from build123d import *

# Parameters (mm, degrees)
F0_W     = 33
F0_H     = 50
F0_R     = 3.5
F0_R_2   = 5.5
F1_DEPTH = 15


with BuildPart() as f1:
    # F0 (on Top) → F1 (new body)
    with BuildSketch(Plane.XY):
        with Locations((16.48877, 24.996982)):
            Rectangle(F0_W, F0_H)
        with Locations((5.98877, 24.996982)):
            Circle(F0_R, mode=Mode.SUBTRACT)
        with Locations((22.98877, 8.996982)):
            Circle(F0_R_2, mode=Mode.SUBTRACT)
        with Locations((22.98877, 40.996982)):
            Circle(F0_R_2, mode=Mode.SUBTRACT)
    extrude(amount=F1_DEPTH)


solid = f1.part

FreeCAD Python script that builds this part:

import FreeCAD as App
import Part
import Sketcher
from FreeCAD import Vector
Q = App.Units.Quantity


def add_polygon(sketch, points):
    """Adds a closed chain of lines whose ends are joined by coincident constraints."""
    first, n = sketch.GeometryCount, len(points)
    for a, b in zip(points, points[1:] + points[:1]):
        sketch.addGeometry(Part.LineSegment(App.Vector(*a, 0), App.Vector(*b, 0)), False)
    for i in range(n):
        sketch.addConstraint(Sketcher.Constraint("Coincident", first + i, 2, first + (i + 1) % n, 1))

doc = App.newDocument("Part")
body = doc.addObject("PartDesign::Body", "Body")

# Sketch on XY plane
sketch1 = body.newObject("Sketcher::SketchObject", "Sketch")
sketch1.AttachmentSupport = (doc.getObject("XY_Plane"), [""])
sketch1.MapMode = "FlatFace"
add_polygon(sketch1, [(0, 50), (0, 0), (33, 0), (33, 50)])  # lines 0-3
sketch1.addGeometry(Part.Circle(Vector(23, 9, 0), Vector(0, 0, 1), 5.5), False)  # 4
sketch1.addGeometry(Part.Circle(Vector(6, 25, 0), Vector(0, 0, 1), 3.5), False)  # 5
sketch1.addGeometry(Part.Circle(Vector(23, 41, 0), Vector(0, 0, 1), 5.5), False)  # 6
sketch1.addConstraint(Sketcher.Constraint("Vertical", 0))
sketch1.addConstraint(Sketcher.Constraint("Horizontal", 1))
sketch1.addConstraint(Sketcher.Constraint("Vertical", 2))
sketch1.addConstraint(Sketcher.Constraint("Horizontal", 3))
sketch1.addConstraint(Sketcher.Constraint("Equal", 4, 6))
sketch1.addConstraint(Sketcher.Constraint("Vertical", 4, 3, 6, 3))
sketch1.addConstraint(Sketcher.Constraint("Diameter", 4, Q("11 mm")))
sketch1.addConstraint(Sketcher.Constraint("Diameter", 5, Q("7 mm")))
sketch1.addConstraint(Sketcher.Constraint("DistanceX", 1, 1, 1, 2, Q("33 mm")))
sketch1.addConstraint(Sketcher.Constraint("DistanceY", 0, 2, 0, 1, Q("50 mm")))
sketch1.addConstraint(Sketcher.Constraint("DistanceX", 5, 3, 4, 3, Q("17 mm")))
sketch1.addConstraint(Sketcher.Constraint("DistanceY", 4, 3, 5, 3, Q("16 mm")))
sketch1.addConstraint(Sketcher.Constraint("DistanceY", 5, 3, 6, 3, Q("16 mm")))
sketch1.addConstraint(Sketcher.Constraint("DistanceX", 0, 2, 4, 3, Q("23 mm")))
sketch1.addConstraint(Sketcher.Constraint("DistanceY", 0, 2, 4, 3, Q("9 mm")))
sketch1.addConstraint(Sketcher.Constraint("DistanceX", -1, 1, 4, 3, Q("22.98877 mm")))
sketch1.addConstraint(Sketcher.Constraint("DistanceY", -1, 1, 4, 3, Q("8.996982 mm")))
pad1 = body.newObject("PartDesign::Pad", "Pad")
pad1.Profile = sketch1
pad1.Length = 15

doc.recompute()
